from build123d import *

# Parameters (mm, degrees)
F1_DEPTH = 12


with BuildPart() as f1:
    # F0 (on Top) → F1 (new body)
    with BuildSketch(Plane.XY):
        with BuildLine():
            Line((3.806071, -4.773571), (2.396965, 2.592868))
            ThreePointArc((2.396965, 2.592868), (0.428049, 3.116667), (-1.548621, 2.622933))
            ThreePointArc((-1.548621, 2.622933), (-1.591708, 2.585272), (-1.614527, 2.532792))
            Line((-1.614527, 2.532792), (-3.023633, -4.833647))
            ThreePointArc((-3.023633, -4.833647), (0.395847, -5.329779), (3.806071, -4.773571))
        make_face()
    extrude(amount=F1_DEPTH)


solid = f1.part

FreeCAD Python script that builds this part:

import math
import FreeCAD as App
import Part
import Sketcher

V = App.Vector
Q = App.Units.Quantity

doc = App.newDocument("Part")
body = doc.addObject("PartDesign::Body", "Body")

# Sketch on XY plane
sketch1 = body.newObject("Sketcher::SketchObject", "Sketch")
sketch1.AttachmentSupport = (doc.getObject("XY_Plane"), [""])
sketch1.MapMode = "FlatFace"
sketch1.addGeometry([
    Part.LineSegment(V(3.81, -4.77, 0), V(2.4, 2.59, 0)),  # 0
    Part.ArcOfCircle(Part.Circle(V(0.4, -0.96, 0), V(0, 0, 1), 4.08), math.radians(61), math.radians(118)),  # 1
    Part.ArcOfCircle(Part.Circle(V(-1.49, 2.51, 0), V(0, 0, 1), 0.13), math.radians(118), math.radians(169)),  # 2
    Part.LineSegment(V(-1.61, 2.53, 0), V(-3.02, -4.83, 0)),  # 3
    Part.ArcOfCircle(Part.Circle(V(0.3, 6.01, 0), V(0, 0, 1), 11.34), math.radians(-107), math.radians(-72)),  # 4
], False)
sketch1.addConstraint([
    Sketcher.Constraint("Coincident", 0, 2, 1, 1),
    Sketcher.Constraint("Coincident", 1, 2, 2, 1),
    Sketcher.Constraint("Coincident", 2, 2, 3, 1),
    Sketcher.Constraint("Coincident", 3, 2, 4, 1),
    Sketcher.Constraint("Coincident", 4, 2, 0, 1),
    Sketcher.Constraint("Equal", 0, 3),
    Sketcher.Constraint("DistanceX", 1, 3, 0, 2, Q("2 mm")),
    Sketcher.Constraint("Distance", 0, Q("7.5 mm")),
    Sketcher.Constraint("Radius", 1, Q("4.079353 mm")),
    Sketcher.Constraint("Radius", 2, Q("0.130432 mm")),
    Sketcher.Constraint("Radius", 4, Q("11.344747 mm")),
    Sketcher.Constraint("DistanceY", 1, 3, 1, 2, Q("3.5855 mm")),
    Sketcher.Constraint("DistanceX", 3, 2, 1, 3, Q("3.420598 mm")),
    Sketcher.Constraint("DistanceY", -1, 1, 2, 3, Q("2.508289 mm")),
    Sketcher.Constraint("DistanceX", -1, 1, 4, 3, Q("0.29606 mm")),
    Sketcher.Constraint("DistanceY", -1, 1, 4, 3, Q("6.014529 mm")),
    Sketcher.Constraint("DistanceY", -1, 1, 0, 2, Q("2.592868 mm")),
    Sketcher.Constraint("DistanceX", 1, 2, -1, 1, Q("1.548621 mm")),
])
pad1 = body.newObject("PartDesign::Pad", "Pad")
pad1.Profile = sketch1
pad1.Length = 12

doc.recompute()
